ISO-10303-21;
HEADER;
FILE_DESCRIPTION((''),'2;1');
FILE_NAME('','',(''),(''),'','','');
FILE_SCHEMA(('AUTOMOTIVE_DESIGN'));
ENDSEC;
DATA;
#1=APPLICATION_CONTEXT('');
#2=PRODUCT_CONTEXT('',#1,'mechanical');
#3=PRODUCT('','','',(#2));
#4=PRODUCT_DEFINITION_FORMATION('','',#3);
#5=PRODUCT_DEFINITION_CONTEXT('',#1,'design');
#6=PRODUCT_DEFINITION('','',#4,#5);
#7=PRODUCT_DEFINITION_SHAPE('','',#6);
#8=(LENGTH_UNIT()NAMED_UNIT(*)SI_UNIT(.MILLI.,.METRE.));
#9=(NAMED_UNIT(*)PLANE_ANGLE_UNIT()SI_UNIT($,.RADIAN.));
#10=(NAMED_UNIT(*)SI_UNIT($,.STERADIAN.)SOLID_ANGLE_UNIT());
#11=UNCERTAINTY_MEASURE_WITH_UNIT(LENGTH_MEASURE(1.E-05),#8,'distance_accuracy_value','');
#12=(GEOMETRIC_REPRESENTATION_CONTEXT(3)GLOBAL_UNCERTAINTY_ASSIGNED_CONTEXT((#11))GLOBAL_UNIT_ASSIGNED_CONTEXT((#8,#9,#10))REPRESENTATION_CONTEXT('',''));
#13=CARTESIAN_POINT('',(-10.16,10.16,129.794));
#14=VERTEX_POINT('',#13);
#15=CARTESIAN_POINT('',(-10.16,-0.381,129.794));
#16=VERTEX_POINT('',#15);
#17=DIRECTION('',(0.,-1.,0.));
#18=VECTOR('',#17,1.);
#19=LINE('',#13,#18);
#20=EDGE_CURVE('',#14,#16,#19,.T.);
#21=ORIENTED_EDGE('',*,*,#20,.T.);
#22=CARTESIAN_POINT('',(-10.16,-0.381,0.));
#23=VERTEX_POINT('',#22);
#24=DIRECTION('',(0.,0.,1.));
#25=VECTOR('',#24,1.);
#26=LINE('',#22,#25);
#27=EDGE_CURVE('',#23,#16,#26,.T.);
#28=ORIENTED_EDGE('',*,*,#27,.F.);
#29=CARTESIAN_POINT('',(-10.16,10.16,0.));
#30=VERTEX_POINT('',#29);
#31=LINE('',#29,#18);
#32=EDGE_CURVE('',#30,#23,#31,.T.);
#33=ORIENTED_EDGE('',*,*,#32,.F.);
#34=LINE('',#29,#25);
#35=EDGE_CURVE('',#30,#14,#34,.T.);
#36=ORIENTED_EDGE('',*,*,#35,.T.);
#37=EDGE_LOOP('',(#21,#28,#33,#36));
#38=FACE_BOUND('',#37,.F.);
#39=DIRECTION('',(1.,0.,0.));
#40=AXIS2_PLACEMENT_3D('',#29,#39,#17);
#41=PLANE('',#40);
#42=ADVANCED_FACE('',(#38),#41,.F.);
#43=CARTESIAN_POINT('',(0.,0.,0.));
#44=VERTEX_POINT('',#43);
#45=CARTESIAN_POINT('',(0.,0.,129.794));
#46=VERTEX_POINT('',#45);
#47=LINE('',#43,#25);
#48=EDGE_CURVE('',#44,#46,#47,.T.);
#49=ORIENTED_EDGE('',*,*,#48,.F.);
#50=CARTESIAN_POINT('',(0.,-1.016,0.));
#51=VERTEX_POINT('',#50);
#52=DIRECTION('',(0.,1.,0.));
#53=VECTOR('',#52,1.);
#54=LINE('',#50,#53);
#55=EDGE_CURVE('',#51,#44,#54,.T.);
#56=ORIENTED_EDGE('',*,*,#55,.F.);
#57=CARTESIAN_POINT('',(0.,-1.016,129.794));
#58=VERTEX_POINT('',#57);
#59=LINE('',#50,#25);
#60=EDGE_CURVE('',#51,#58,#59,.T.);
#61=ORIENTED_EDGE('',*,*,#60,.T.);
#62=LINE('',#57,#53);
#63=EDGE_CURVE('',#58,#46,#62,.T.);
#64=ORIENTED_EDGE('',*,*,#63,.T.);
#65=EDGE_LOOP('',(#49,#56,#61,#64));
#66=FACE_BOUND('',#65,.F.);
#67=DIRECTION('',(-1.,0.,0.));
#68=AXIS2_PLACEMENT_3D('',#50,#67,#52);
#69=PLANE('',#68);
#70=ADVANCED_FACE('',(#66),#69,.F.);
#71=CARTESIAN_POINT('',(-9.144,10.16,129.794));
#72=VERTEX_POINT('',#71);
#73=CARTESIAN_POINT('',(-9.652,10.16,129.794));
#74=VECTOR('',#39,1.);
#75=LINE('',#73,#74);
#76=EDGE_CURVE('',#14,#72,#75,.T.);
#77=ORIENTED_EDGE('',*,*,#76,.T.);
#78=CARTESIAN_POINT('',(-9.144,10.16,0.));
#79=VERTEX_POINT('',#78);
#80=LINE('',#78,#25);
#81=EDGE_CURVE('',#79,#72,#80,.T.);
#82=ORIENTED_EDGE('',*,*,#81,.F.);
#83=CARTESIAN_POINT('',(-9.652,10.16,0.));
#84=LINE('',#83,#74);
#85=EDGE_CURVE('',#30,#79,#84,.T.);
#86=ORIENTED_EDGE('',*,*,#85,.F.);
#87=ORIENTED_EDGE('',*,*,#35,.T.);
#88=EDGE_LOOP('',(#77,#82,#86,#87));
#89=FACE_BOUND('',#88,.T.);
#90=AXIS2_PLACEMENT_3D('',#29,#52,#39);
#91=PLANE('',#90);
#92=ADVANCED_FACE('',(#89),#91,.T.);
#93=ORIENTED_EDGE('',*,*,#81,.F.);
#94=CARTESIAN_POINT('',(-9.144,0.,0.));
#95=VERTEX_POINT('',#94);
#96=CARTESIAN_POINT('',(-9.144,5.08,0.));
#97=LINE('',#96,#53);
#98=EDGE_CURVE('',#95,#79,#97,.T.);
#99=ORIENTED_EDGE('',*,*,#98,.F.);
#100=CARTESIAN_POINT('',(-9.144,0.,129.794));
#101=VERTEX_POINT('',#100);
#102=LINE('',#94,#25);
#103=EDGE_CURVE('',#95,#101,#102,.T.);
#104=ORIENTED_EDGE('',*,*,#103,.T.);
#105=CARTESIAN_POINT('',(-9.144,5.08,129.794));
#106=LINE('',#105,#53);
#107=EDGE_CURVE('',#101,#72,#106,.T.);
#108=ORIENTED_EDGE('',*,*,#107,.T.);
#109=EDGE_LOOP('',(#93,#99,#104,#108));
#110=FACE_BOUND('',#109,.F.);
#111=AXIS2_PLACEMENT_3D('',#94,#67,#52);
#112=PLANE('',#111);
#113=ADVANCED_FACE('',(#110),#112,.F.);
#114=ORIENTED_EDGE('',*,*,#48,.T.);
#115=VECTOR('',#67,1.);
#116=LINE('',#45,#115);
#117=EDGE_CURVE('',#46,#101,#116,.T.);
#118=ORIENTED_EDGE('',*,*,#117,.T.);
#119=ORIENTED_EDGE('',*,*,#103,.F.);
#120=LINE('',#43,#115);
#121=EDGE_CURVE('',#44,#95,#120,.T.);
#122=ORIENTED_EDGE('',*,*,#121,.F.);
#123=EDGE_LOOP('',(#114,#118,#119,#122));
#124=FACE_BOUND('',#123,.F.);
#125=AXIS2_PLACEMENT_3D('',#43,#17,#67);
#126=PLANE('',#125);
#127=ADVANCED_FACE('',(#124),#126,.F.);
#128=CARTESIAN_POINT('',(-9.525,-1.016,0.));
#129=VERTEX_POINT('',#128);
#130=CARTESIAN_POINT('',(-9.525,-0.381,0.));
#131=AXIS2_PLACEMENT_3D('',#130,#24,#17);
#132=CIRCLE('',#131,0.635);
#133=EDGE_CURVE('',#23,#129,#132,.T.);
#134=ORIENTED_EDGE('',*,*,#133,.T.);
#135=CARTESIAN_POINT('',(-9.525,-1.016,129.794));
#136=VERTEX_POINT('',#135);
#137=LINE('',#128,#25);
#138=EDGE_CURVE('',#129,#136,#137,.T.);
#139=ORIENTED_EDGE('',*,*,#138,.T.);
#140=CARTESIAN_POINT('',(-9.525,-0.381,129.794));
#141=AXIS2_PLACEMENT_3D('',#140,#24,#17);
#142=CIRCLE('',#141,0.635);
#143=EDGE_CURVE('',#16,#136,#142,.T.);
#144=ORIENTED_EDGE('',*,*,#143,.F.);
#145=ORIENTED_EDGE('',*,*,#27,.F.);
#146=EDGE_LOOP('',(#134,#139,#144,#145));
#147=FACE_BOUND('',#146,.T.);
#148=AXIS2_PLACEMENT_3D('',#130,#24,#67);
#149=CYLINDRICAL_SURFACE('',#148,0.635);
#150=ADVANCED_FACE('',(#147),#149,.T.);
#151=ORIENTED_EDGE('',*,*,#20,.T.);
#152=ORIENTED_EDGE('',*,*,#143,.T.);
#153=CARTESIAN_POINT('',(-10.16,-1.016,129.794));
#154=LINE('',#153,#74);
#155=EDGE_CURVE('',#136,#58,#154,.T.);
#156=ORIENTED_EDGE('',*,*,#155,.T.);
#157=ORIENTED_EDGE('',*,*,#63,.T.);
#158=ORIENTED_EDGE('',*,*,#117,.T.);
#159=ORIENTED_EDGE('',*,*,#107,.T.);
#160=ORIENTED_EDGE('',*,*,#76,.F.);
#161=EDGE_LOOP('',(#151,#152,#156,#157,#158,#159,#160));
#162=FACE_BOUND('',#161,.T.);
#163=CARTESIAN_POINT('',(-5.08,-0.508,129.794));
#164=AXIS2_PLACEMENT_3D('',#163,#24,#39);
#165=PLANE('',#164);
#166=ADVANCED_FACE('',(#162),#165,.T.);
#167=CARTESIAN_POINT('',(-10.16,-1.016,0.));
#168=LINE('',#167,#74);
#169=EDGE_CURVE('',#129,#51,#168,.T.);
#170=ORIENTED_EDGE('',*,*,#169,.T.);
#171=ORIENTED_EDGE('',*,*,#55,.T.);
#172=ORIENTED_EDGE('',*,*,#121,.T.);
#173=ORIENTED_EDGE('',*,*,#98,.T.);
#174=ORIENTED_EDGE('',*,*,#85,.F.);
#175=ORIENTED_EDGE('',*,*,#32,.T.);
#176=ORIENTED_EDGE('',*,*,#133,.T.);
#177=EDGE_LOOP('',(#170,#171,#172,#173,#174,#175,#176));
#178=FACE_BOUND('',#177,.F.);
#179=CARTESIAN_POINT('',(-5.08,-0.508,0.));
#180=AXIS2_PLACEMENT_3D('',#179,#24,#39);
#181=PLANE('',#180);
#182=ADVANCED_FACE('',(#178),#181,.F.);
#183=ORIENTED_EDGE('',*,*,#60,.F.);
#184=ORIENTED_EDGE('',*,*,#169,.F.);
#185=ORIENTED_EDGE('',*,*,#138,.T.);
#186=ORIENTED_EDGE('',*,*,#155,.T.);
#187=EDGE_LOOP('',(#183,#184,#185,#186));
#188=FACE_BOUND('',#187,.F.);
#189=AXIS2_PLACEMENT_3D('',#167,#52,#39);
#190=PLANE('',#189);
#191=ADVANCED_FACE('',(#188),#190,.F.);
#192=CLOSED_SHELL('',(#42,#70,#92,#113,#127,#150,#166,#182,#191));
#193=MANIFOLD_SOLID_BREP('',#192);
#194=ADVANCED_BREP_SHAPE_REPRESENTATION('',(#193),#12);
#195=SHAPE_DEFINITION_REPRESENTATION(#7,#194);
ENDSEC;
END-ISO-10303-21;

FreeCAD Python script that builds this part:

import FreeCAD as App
import Part
import Sketcher
Q = App.Units.Quantity


def edges_at(feature, points):
    """Names of the edges that pass closest to the given points."""
    edges = feature.Shape.Edges
    near = lambda p: min(range(len(edges)), key=lambda i: edges[i].distToShape(Part.Vertex(*p))[0])
    return sorted({f"Edge{near(p) + 1}" for p in points})

doc = App.newDocument("Part")
body = doc.addObject("PartDesign::Body", "Body")

# Sketch on XY plane
sketch1 = doc.addObject("Sketcher::SketchObject", "Sketch")
body.addObject(sketch1)
sketch1.AttachmentSupport = (doc.XY_Plane, [""])
sketch1.MapMode = "FlatFace"
sketch1.addGeometry(Part.LineSegment(App.Vector(0, -1, 0), App.Vector(0, 0, 0)), False)
sketch1.addGeometry(Part.LineSegment(App.Vector(0, 0, 0), App.Vector(-9.1, 0, 0)), False)
sketch1.addGeometry(Part.LineSegment(App.Vector(-9.1, 0, 0), App.Vector(-9.1, 10.2, 0)), False)
sketch1.addGeometry(Part.LineSegment(App.Vector(-9.1, 10.2, 0), App.Vector(-10.2, 10.2, 0)), False)
sketch1.addGeometry(Part.LineSegment(App.Vector(-10.2, 10.2, 0), App.Vector(-10.2, -1, 0)), False)
sketch1.addGeometry(Part.LineSegment(App.Vector(-10.2, -1, 0), App.Vector(0, -1, 0)), False)
sketch1.addConstraint(Sketcher.Constraint("Coincident", 0, 2, 1, 1))
sketch1.addConstraint(Sketcher.Constraint("Coincident", 1, 2, 2, 1))
sketch1.addConstraint(Sketcher.Constraint("Coincident", 2, 2, 3, 1))
sketch1.addConstraint(Sketcher.Constraint("Coincident", 3, 2, 4, 1))
sketch1.addConstraint(Sketcher.Constraint("Coincident", 4, 2, 5, 1))
sketch1.addConstraint(Sketcher.Constraint("Coincident", 5, 2, 0, 1))
sketch1.addConstraint(Sketcher.Constraint("Vertical", 0))
sketch1.addConstraint(Sketcher.Constraint("Horizontal", 1))
sketch1.addConstraint(Sketcher.Constraint("Vertical", 2))
sketch1.addConstraint(Sketcher.Constraint("Horizontal", 3))
sketch1.addConstraint(Sketcher.Constraint("Vertical", 4))
sketch1.addConstraint(Sketcher.Constraint("Horizontal", 5))
sketch1.addConstraint(Sketcher.Constraint("Coincident", 0, 2, -1, 1))
sketch1.addConstraint(Sketcher.Constraint("Equal", 3, 0))
sketch1.addConstraint(Sketcher.Constraint("Equal", 5, 2))
sketch1.addConstraint(Sketcher.Constraint("DistanceX", 5, 1, 5, 2, Q("0.4 in")))
sketch1.addConstraint(Sketcher.Constraint("DistanceX", 1, 2, 1, 1, Q("0.36 in")))
pad1 = doc.addObject("PartDesign::Pad", "Pad")
body.addObject(pad1)
pad1.Profile = sketch1
pad1.Length = Q("5.11 in")
doc.recompute()

fillet = doc.addObject("PartDesign::Fillet", "Fillet")
body.addObject(fillet)
fillet.Base = (pad1, edges_at(pad1, [(-10.16, -1.016, 64.897)]))
fillet.Radius = Q("0.025 in")

doc.recompute()
